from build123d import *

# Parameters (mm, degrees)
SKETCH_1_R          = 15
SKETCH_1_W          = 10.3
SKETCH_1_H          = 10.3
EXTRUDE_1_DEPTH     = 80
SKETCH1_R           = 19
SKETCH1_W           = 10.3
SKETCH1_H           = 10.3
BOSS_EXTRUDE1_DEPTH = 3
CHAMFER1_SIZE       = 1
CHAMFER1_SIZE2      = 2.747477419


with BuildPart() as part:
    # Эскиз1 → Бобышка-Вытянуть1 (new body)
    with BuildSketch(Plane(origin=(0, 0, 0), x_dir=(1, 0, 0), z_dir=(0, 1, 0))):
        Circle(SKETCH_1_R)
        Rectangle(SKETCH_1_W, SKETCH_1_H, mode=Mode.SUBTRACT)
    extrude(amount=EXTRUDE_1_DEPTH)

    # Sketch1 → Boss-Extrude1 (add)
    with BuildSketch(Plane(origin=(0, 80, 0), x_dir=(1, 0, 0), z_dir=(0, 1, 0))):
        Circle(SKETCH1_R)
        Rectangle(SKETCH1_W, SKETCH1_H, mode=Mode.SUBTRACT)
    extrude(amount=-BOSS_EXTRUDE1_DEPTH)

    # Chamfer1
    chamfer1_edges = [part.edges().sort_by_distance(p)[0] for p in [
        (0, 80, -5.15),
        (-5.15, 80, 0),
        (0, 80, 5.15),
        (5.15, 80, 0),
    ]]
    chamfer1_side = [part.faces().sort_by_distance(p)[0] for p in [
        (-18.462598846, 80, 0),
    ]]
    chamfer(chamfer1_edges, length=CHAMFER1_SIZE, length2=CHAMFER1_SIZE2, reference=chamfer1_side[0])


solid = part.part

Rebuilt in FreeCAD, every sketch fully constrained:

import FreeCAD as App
import Part
import Sketcher

V = App.Vector


def edges_at(feature, points):
    """Names of the edges that pass closest to the given points."""
    edges = feature.Shape.Edges
    near = lambda p: min(range(len(edges)), key=lambda i: edges[i].distToShape(Part.Vertex(*p))[0])
    return sorted({f"Edge{near(p) + 1}" for p in points})

doc = App.newDocument("Part")
body = doc.addObject("PartDesign::Body", "Body")

# Sketch on XZ plane
sketch1 = body.newObject("Sketcher::SketchObject", "Sketch")
sketch1.AttachmentSupport = (doc.getObject("XZ_Plane"), [""])
sketch1.MapMode = "FlatFace"
sketch1.addGeometry(Part.Circle(V(0, 0, 0), V(0, 0, 1), 15), False)
sketch1.addGeometry(Part.LineSegment(V(5, 5, 0), V(-5, 5, 0)), False)
sketch1.addGeometry(Part.LineSegment(V(-5, 5, 0), V(-5, -5, 0)), False)
sketch1.addGeometry(Part.LineSegment(V(-5, -5, 0), V(5, -5, 0)), False)
sketch1.addGeometry(Part.LineSegment(V(5, -5, 0), V(5, 5, 0)), False)
sketch1.addConstraint(Sketcher.Constraint("Coincident", 1, 2, 2, 1))
sketch1.addConstraint(Sketcher.Constraint("Coincident", 2, 2, 3, 1))
sketch1.addConstraint(Sketcher.Constraint("Coincident", 3, 2, 4, 1))
sketch1.addConstraint(Sketcher.Constraint("Coincident", 4, 2, 1, 1))
sketch1.addConstraint(Sketcher.Constraint("Horizontal", 1))
sketch1.addConstraint(Sketcher.Constraint("Vertical", 2))
sketch1.addConstraint(Sketcher.Constraint("Horizontal", 3))
sketch1.addConstraint(Sketcher.Constraint("Vertical", 4))
sketch1.addConstraint(Sketcher.Constraint("Coincident", 0, 3, -1, 1))
sketch1.addConstraint(Sketcher.Constraint("Symmetric", 1, 2, 3, 2, -1, 1))
sketch1.addConstraint(Sketcher.Constraint("Equal", 3, 2))
sketch1.addConstraint(Sketcher.Constraint("Diameter", 0, 30.0))
sketch1.addConstraint(Sketcher.Constraint("DistanceX", 1, 2, 1, 1, 10.3))
pad1 = body.newObject("PartDesign::Pad", "Pad")
pad1.Profile = sketch1
pad1.Length = 80
pad1.Reversed = True

# Sketch on XZ plane
sketch2 = body.newObject("Sketcher::SketchObject", "Sketch001")
sketch2.AttachmentSupport = (doc.getObject("XZ_Plane"), [""])
sketch2.MapMode = "FlatFace"
sketch2.AttachmentOffset = App.Placement(V(0, 0, -80), App.Rotation())
sketch2.addGeometry(Part.Circle(V(0, 0, 0), V(0, 0, 1), 19), False)
sketch2.addGeometry(Part.LineSegment(V(5, 5, 0), V(-5, 5, 0)), False)
sketch2.addGeometry(Part.LineSegment(V(-5, 5, 0), V(-5, -5, 0)), False)
sketch2.addGeometry(Part.LineSegment(V(-5, -5, 0), V(5, -5, 0)), False)
sketch2.addGeometry(Part.LineSegment(V(5, -5, 0), V(5, 5, 0)), False)
sketch2.addConstraint(Sketcher.Constraint("Coincident", 1, 2, 2, 1))
sketch2.addConstraint(Sketcher.Constraint("Coincident", 2, 2, 3, 1))
sketch2.addConstraint(Sketcher.Constraint("Coincident", 3, 2, 4, 1))
sketch2.addConstraint(Sketcher.Constraint("Coincident", 4, 2, 1, 1))
sketch2.addConstraint(Sketcher.Constraint("Horizontal", 1))
sketch2.addConstraint(Sketcher.Constraint("Vertical", 2))
sketch2.addConstraint(Sketcher.Constraint("Horizontal", 3))
sketch2.addConstraint(Sketcher.Constraint("Vertical", 4))
sketch2.addConstraint(Sketcher.Constraint("Coincident", 0, 3, -1, 1))
sketch2.addConstraint(Sketcher.Constraint("Symmetric", 1, 2, 3, 2, -1, 1))
sketch2.addConstraint(Sketcher.Constraint("Equal", 3, 2))
sketch2.addConstraint(Sketcher.Constraint("Diameter", 0, 38.0))
sketch2.addConstraint(Sketcher.Constraint("DistanceX", 1, 2, 1, 1, 10.3))
pad2 = body.newObject("PartDesign::Pad", "Pad001")
pad2.Profile = sketch2
pad2.Length = 3
doc.recompute()

chamfer = body.newObject("PartDesign::Chamfer", "Chamfer")
chamfer.Base = (pad2, edges_at(pad2, [
    (0, 80, -5.15),
    (-5.15, 80, 0),
    (0, 80, 5.15),
    (5.15, 80, 0),
]))
chamfer.ChamferType = "Two distances"
chamfer.Size = 1
chamfer.Size2 = 2.747477
chamfer.FlipDirection = True

doc.recompute()
